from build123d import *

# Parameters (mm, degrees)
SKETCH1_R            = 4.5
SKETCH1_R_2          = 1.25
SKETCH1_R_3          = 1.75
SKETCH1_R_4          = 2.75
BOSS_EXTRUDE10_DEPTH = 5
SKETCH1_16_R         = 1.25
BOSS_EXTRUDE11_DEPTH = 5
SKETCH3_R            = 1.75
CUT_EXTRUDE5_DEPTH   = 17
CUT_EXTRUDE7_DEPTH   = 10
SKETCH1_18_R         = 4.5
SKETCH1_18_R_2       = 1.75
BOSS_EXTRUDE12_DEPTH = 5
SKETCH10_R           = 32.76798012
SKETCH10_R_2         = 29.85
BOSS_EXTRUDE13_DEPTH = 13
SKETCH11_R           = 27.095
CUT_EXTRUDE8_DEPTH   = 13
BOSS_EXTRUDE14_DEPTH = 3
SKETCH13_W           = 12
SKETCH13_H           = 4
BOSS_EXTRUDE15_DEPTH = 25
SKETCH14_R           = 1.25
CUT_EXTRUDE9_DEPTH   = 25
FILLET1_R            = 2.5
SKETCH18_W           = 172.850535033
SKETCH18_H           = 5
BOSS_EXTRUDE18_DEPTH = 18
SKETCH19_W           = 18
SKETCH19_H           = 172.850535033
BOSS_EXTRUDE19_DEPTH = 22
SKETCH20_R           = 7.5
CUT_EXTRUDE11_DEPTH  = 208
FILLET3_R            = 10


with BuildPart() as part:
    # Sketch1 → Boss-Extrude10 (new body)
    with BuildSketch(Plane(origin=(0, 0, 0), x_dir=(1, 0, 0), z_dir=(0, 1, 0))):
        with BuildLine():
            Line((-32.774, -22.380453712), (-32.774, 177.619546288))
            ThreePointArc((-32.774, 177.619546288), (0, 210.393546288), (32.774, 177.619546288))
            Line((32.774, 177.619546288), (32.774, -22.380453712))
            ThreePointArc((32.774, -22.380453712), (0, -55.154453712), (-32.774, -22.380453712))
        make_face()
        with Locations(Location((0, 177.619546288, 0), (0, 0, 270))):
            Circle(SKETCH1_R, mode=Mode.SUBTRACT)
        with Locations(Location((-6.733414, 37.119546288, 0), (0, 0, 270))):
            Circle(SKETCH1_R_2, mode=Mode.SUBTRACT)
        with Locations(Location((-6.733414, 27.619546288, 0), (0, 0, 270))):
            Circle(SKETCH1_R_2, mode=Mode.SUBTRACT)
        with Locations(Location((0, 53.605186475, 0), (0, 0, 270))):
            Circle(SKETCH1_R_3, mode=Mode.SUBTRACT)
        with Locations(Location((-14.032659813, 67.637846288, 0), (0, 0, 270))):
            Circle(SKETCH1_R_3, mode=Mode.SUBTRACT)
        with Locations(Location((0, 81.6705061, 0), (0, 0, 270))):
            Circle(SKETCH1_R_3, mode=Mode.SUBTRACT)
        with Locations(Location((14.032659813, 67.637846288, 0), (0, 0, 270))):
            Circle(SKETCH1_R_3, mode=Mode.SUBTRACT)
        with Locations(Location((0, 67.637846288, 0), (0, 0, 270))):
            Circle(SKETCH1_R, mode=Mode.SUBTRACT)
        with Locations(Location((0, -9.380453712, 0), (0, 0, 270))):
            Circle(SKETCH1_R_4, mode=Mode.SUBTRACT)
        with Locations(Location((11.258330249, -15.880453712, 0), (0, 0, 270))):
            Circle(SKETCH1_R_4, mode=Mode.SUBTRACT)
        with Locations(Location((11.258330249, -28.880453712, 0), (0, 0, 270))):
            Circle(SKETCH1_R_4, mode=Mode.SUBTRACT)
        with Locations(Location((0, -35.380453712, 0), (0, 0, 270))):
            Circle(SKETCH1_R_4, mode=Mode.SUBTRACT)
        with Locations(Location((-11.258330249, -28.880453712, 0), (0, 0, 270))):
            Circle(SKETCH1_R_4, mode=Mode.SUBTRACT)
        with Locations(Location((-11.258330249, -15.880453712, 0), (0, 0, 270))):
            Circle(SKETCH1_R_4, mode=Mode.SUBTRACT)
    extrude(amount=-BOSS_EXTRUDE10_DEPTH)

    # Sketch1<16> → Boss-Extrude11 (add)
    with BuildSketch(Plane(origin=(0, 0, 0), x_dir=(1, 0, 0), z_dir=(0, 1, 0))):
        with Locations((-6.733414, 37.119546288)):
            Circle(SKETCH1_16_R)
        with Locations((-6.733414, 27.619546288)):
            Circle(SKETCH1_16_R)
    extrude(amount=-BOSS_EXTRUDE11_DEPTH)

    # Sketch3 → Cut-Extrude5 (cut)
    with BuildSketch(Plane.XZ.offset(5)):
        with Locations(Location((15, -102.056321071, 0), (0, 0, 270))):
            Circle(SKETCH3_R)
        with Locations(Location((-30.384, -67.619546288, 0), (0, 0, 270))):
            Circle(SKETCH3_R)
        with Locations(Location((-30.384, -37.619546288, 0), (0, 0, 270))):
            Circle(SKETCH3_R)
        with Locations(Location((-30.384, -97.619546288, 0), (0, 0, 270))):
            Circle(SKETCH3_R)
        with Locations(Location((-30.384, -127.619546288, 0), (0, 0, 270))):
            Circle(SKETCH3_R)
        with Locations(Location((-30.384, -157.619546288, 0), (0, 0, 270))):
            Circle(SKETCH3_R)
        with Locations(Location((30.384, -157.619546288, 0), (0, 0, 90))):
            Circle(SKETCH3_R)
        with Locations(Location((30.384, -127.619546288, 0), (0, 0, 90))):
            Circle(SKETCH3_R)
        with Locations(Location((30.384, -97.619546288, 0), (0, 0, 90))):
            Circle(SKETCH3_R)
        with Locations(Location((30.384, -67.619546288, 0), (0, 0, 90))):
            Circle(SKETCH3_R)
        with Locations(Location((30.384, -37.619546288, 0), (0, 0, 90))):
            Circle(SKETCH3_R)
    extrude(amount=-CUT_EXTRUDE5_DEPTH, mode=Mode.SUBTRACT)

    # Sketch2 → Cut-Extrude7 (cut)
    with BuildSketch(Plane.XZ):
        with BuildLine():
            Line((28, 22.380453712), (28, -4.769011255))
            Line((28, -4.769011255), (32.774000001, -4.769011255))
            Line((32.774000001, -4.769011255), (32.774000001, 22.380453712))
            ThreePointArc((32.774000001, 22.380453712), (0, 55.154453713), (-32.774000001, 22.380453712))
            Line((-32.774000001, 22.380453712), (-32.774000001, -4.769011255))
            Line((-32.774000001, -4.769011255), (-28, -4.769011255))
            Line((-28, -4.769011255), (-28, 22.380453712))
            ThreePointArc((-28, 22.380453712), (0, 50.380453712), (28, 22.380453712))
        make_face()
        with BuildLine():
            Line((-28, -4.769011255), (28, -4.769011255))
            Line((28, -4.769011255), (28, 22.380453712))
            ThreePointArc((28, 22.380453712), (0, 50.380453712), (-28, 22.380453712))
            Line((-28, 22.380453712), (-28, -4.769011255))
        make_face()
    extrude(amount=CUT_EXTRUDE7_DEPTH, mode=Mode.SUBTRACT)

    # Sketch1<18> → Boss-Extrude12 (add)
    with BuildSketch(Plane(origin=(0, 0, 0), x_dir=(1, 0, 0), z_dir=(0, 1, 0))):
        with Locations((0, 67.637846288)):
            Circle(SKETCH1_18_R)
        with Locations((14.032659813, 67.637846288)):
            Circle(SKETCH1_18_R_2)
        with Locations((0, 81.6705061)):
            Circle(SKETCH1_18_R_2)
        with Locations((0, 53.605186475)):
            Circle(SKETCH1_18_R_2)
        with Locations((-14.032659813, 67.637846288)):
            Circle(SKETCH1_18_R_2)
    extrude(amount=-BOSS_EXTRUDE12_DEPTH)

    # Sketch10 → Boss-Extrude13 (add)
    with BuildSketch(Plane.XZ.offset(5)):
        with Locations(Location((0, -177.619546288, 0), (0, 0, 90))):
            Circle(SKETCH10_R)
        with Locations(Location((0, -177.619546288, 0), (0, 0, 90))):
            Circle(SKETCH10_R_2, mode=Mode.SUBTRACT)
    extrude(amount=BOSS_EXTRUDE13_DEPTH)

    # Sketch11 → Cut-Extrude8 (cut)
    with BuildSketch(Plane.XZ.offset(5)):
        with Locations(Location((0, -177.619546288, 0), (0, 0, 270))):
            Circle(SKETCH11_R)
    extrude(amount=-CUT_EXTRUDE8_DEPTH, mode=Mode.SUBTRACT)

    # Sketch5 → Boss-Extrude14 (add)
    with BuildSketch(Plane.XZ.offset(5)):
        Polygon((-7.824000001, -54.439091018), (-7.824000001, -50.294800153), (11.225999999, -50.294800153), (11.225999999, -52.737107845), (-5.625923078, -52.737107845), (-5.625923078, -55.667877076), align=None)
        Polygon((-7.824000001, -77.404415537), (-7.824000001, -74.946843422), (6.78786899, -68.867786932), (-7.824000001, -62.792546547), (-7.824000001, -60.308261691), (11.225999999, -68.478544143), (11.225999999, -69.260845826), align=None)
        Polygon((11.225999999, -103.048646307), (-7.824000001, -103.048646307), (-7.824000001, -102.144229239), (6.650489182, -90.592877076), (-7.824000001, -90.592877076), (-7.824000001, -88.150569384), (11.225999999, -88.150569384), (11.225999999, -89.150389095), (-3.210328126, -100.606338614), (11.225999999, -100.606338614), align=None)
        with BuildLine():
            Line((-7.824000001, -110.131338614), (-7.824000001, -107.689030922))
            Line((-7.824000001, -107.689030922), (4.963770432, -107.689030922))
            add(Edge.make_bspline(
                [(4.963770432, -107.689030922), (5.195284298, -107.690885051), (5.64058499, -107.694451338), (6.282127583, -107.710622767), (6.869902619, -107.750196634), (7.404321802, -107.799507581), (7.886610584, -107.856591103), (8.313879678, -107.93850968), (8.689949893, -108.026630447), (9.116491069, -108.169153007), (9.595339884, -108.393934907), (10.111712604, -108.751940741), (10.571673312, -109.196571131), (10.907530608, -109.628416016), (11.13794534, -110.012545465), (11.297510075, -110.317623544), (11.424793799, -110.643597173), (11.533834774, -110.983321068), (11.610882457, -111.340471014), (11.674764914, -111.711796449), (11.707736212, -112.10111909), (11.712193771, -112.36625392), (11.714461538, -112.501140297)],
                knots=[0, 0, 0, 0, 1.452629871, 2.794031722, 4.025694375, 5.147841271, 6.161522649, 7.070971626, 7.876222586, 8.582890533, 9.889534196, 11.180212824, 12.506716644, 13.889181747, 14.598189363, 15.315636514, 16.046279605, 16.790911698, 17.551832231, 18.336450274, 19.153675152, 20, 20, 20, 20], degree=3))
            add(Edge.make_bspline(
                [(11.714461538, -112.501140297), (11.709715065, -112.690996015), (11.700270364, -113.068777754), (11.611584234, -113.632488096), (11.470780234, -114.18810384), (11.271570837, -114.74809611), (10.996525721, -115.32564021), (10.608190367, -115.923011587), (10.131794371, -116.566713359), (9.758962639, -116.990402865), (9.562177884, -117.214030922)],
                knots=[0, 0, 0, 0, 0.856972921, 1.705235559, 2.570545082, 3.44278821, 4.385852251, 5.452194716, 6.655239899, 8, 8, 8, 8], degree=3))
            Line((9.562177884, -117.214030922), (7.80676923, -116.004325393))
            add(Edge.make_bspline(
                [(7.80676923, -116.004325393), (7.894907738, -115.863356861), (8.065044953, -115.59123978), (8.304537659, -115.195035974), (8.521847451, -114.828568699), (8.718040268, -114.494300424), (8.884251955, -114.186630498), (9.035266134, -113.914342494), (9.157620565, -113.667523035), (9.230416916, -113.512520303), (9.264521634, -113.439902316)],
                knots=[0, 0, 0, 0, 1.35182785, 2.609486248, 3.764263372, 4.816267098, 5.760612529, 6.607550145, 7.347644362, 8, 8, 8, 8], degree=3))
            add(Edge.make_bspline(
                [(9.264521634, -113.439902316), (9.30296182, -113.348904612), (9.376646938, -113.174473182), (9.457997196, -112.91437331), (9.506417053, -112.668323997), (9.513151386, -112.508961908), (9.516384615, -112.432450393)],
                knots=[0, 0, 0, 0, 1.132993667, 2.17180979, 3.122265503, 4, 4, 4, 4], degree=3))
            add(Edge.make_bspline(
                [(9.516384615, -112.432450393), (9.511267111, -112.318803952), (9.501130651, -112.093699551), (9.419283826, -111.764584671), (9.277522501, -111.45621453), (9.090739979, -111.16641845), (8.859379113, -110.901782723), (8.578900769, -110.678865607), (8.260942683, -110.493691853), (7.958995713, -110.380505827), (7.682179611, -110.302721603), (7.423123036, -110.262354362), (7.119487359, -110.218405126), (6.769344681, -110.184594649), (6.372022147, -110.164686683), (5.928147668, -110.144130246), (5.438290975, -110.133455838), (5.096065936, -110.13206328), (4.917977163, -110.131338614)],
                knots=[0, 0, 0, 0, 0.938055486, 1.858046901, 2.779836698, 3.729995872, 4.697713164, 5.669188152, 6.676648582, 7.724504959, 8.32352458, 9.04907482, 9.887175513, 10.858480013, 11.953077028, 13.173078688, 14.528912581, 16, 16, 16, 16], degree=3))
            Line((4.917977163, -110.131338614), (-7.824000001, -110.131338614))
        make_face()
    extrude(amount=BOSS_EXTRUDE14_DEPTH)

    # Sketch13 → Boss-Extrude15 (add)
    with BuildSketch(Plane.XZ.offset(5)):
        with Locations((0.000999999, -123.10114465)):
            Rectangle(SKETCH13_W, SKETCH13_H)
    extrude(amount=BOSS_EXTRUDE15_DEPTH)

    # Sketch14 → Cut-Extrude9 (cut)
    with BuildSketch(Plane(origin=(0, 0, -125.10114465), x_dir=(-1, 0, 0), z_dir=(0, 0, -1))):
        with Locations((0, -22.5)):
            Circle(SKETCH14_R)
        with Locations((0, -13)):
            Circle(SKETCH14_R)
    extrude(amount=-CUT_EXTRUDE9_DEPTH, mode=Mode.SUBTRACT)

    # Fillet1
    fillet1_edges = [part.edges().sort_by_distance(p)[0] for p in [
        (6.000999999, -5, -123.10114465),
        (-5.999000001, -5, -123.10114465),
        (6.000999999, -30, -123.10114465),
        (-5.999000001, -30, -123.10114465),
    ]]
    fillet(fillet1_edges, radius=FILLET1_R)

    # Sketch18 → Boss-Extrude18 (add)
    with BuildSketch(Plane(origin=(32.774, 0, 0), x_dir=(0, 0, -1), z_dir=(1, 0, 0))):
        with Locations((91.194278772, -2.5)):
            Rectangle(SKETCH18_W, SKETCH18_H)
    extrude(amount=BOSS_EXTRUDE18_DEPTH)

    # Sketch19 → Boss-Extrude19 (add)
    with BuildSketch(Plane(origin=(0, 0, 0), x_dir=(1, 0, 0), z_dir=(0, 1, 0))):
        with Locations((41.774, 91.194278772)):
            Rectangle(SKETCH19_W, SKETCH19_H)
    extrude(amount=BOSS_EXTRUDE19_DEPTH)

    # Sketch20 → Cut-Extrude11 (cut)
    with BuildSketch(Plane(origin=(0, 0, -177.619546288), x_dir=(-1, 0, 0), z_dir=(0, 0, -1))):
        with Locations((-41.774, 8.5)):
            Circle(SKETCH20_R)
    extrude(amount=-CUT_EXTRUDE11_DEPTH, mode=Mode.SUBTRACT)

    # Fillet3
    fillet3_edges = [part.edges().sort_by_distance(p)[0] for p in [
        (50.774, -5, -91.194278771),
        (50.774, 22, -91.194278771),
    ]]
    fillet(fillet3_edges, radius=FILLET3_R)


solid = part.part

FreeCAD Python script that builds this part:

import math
import FreeCAD as App
import Part
import Sketcher

V = App.Vector


def edges_at(feature, points):
    """Names of the edges that pass closest to the given points."""
    edges = feature.Shape.Edges
    near = lambda p: min(range(len(edges)), key=lambda i: edges[i].distToShape(Part.Vertex(*p))[0])
    return sorted({f"Edge{near(p) + 1}" for p in points})


def add_polygon(sketch, points):
    """Adds a closed chain of lines whose ends are joined by coincident constraints."""
    first, n = sketch.GeometryCount, len(points)
    for a, b in zip(points, points[1:] + points[:1]):
        sketch.addGeometry(Part.LineSegment(App.Vector(*a, 0), App.Vector(*b, 0)), False)
    for i in range(n):
        sketch.addConstraint(Sketcher.Constraint("Coincident", first + i, 2, first + (i + 1) % n, 1))

doc = App.newDocument("Part")
body = doc.addObject("PartDesign::Body", "Body")

# Sketch on XZ plane
sketch1 = body.newObject("Sketcher::SketchObject", "Sketch")
sketch1.AttachmentSupport = (doc.getObject("XZ_Plane"), [""])
sketch1.MapMode = "FlatFace"
sketch1.addGeometry(Part.LineSegment(V(-32.774, -177.619546, 0), V(-32.774, 22.380454, 0)), False)
sketch1.addGeometry(Part.ArcOfCircle(Part.Circle(V(0, 22.380454, 0), V(0, 0, 1), 32.774), math.radians(0), math.radians(180)), False)
sketch1.addGeometry(Part.LineSegment(V(32.774, 22.380454, 0), V(32.774, -177.619546, 0)), False)
sketch1.addGeometry(Part.ArcOfCircle(Part.Circle(V(0, -177.619546, 0), V(0, 0, 1), 32.774), math.radians(180), math.radians(360)), False)
sketch1.addGeometry(Part.Circle(V(11.25833, 28.880454, 0), V(0, 0, 1), 2.75), False)
sketch1.addGeometry(Part.Circle(V(11.25833, 15.880454, 0), V(0, 0, 1), 2.75), False)
sketch1.addGeometry(Part.Circle(V(14.03266, -67.637846, 0), V(0, 0, 1), 1.75), False)
sketch1.addGeometry(Part.Circle(V(0, 35.380454, 0), V(0, 0, 1), 2.75), False)
sketch1.addGeometry(Part.Circle(V(0, 9.380454, 0), V(0, 0, 1), 2.75), False)
sketch1.addGeometry(Part.Circle(V(-11.25833, 28.880454, 0), V(0, 0, 1), 2.75), False)
sketch1.addGeometry(Part.Circle(V(-11.25833, 15.880454, 0), V(0, 0, 1), 2.75), False)
sketch1.addGeometry(Part.Circle(V(-6.733414, -27.619546, 0), V(0, 0, 1), 1.25), False)
sketch1.addGeometry(Part.Circle(V(-6.733414, -37.119546, 0), V(0, 0, 1), 1.25), False)
sketch1.addGeometry(Part.Circle(V(0, -53.605186, 0), V(0, 0, 1), 1.75), False)
sketch1.addGeometry(Part.Circle(V(0, -67.637846, 0), V(0, 0, 1), 4.5), False)
sketch1.addGeometry(Part.Circle(V(-14.03266, -67.637846, 0), V(0, 0, 1), 1.75), False)
sketch1.addGeometry(Part.Circle(V(0, -81.670506, 0), V(0, 0, 1), 1.75), False)
sketch1.addGeometry(Part.Circle(V(0, -177.619546, 0), V(0, 0, 1), 4.5), False)
sketch1.addConstraint(Sketcher.Constraint("Tangent", 0, 2, 1, 2))
sketch1.addConstraint(Sketcher.Constraint("Tangent", 1, 1, 2, 1))
sketch1.addConstraint(Sketcher.Constraint("Tangent", 2, 2, 3, 2))
sketch1.addConstraint(Sketcher.Constraint("Tangent", 3, 1, 0, 1))
sketch1.addConstraint(Sketcher.Constraint("Vertical", 0))
sketch1.addConstraint(Sketcher.Constraint("Vertical", 2))
sketch1.addConstraint(Sketcher.Constraint("Coincident", 17, 3, 3, 3))
sketch1.addConstraint(Sketcher.Constraint("Equal", 4, 5))
sketch1.addConstraint(Sketcher.Constraint("Equal", 5, 7))
sketch1.addConstraint(Sketcher.Constraint("Equal", 7, 8))
sketch1.addConstraint(Sketcher.Constraint("Equal", 8, 9))
sketch1.addConstraint(Sketcher.Constraint("Equal", 9, 10))
sketch1.addConstraint(Sketcher.Constraint("Equal", 11, 12))
sketch1.addConstraint(Sketcher.Constraint("Equal", 6, 13))
sketch1.addConstraint(Sketcher.Constraint("Equal", 13, 15))
sketch1.addConstraint(Sketcher.Constraint("Equal", 15, 16))
sketch1.addConstraint(Sketcher.Constraint("Equal", 14, 17))
sketch1.addConstraint(Sketcher.Constraint("Symmetric", 4, 3, 9, 3, -2))
sketch1.addConstraint(Sketcher.Constraint("Symmetric", 5, 3, 10, 3, -2))
sketch1.addConstraint(Sketcher.Constraint("Symmetric", 6, 3, 15, 3, -2))
sketch1.addConstraint(Sketcher.Constraint("PointOnObject", 1, 3, -2))
sketch1.addConstraint(Sketcher.Constraint("PointOnObject", 7, 3, -2))
sketch1.addConstraint(Sketcher.Constraint("PointOnObject", 8, 3, -2))
sketch1.addConstraint(Sketcher.Constraint("PointOnObject", 13, 3, -2))
sketch1.addConstraint(Sketcher.Constraint("PointOnObject", 14, 3, -2))
sketch1.addConstraint(Sketcher.Constraint("PointOnObject", 16, 3, -2))
sketch1.addConstraint(Sketcher.Constraint("Horizontal", 6, 3, 14, 3))
sketch1.addConstraint(Sketcher.Constraint("Vertical", 4, 3, 5, 3))
sketch1.addConstraint(Sketcher.Constraint("Vertical", 11, 3, 12, 3))
sketch1.addConstraint(Sketcher.Constraint("Diameter", 14, 9.0))
sketch1.addConstraint(Sketcher.Constraint("Diameter", 4, 5.5))
sketch1.addConstraint(Sketcher.Constraint("Diameter", 6, 3.5))
sketch1.addConstraint(Sketcher.Constraint("Diameter", 11, 2.5))
sketch1.addConstraint(Sketcher.Constraint("DistanceY", 0, 1, 0, 2, 200.0))
sketch1.addConstraint(Sketcher.Constraint("Radius", 1, 32.774))
sketch1.addConstraint(Sketcher.Constraint("DistanceY", 5, 3, 4, 3, 13.0))
sketch1.addConstraint(Sketcher.Constraint("DistanceY", 1, 3, 7, 3, 13.0))
sketch1.addConstraint(Sketcher.Constraint("DistanceY", 8, 3, 1, 3, 13.0))
sketch1.addConstraint(Sketcher.Constraint("DistanceY", 11, 3, 8, 3, 37.0))
sketch1.addConstraint(Sketcher.Constraint("DistanceY", 12, 3, 10, 3, 53.0))
sketch1.addConstraint(Sketcher.Constraint("DistanceY", 1, 3, 4, 3, 6.5))
sketch1.addConstraint(Sketcher.Constraint("DistanceY", 6, 3, 5, 3, 83.5183))
sketch1.addConstraint(Sketcher.Constraint("DistanceX", -1, 1, 4, 3, 11.25833))
sketch1.addConstraint(Sketcher.Constraint("DistanceX", -1, 1, 6, 3, 14.03266))
sketch1.addConstraint(Sketcher.Constraint("DistanceY", 13, 3, 12, 3, 16.48564))
sketch1.addConstraint(Sketcher.Constraint("DistanceY", 16, 3, 14, 3, 14.03266))
sketch1.addConstraint(Sketcher.Constraint("DistanceY", -1, 1, 1, 3, 22.380454))
sketch1.addConstraint(Sketcher.Constraint("DistanceX", 11, 3, -1, 1, 6.733414))
pad1 = body.newObject("PartDesign::Pad", "Pad")
pad1.Profile = sketch1
pad1.Length = 5

# Sketch on XZ plane
sketch2 = body.newObject("Sketcher::SketchObject", "Sketch001")
sketch2.AttachmentSupport = (doc.getObject("XZ_Plane"), [""])
sketch2.MapMode = "FlatFace"
sketch2.addGeometry(Part.Circle(V(-6.733414, -37.119546, 0), V(0, 0, 1), 1.25), False)
sketch2.addGeometry(Part.Circle(V(-6.733414, -27.619546, 0), V(0, 0, 1), 1.25), False)
sketch2.addConstraint(Sketcher.Constraint("Equal", 0, 1))
sketch2.addConstraint(Sketcher.Constraint("Vertical", 0, 3, 1, 3))
sketch2.addConstraint(Sketcher.Constraint("Diameter", 0, 2.5))
sketch2.addConstraint(Sketcher.Constraint("DistanceY", 0, 3, 1, 3, 9.5))
sketch2.addConstraint(Sketcher.Constraint("DistanceX", 0, 3, -1, 1, 6.733414))
sketch2.addConstraint(Sketcher.Constraint("DistanceY", 0, 3, -1, 1, 37.119546))
pad2 = body.newObject("PartDesign::Pad", "Pad001")
pad2.Profile = sketch2
pad2.Length = 5

# Sketch on XZ plane
sketch3 = body.newObject("Sketcher::SketchObject", "Sketch002")
sketch3.AttachmentSupport = (doc.getObject("XZ_Plane"), [""])
sketch3.MapMode = "FlatFace"
sketch3.AttachmentOffset = App.Placement(V(0, 0, 5), App.Rotation())
sketch3.addGeometry(Part.Circle(V(15, -102.056321, 0), V(0, 0, 1), 1.75), False)
sketch3.addGeometry(Part.Circle(V(-30.384, -67.619546, 0), V(0, 0, 1), 1.75), False)
sketch3.addGeometry(Part.Circle(V(-30.384, -37.619546, 0), V(0, 0, 1), 1.75), False)
sketch3.addGeometry(Part.Circle(V(-30.384, -97.619546, 0), V(0, 0, 1), 1.75), False)
sketch3.addGeometry(Part.Circle(V(-30.384, -127.619546, 0), V(0, 0, 1), 1.75), False)
sketch3.addGeometry(Part.Circle(V(-30.384, -157.619546, 0), V(0, 0, 1), 1.75), False)
sketch3.addGeometry(Part.Circle(V(30.384, -157.619546, 0), V(0, 0, 1), 1.75), False)
sketch3.addGeometry(Part.Circle(V(30.384, -127.619546, 0), V(0, 0, 1), 1.75), False)
sketch3.addGeometry(Part.Circle(V(30.384, -97.619546, 0), V(0, 0, 1), 1.75), False)
sketch3.addGeometry(Part.Circle(V(30.384, -67.619546, 0), V(0, 0, 1), 1.75), False)
sketch3.addGeometry(Part.Circle(V(30.384, -37.619546, 0), V(0, 0, 1), 1.75), False)
sketch3.addConstraint(Sketcher.Constraint("Equal", 0, 1))
sketch3.addConstraint(Sketcher.Constraint("Equal", 1, 2))
sketch3.addConstraint(Sketcher.Constraint("Equal", 2, 3))
sketch3.addConstraint(Sketcher.Constraint("Equal", 3, 4))
sketch3.addConstraint(Sketcher.Constraint("Equal", 4, 5))
sketch3.addConstraint(Sketcher.Constraint("Equal", 5, 6))
sketch3.addConstraint(Sketcher.Constraint("Equal", 6, 7))
sketch3.addConstraint(Sketcher.Constraint("Equal", 7, 8))
sketch3.addConstraint(Sketcher.Constraint("Equal", 8, 9))
sketch3.addConstraint(Sketcher.Constraint("Equal", 9, 10))
sketch3.addConstraint(Sketcher.Constraint("Symmetric", 5, 3, 6, 3, -2))
sketch3.addConstraint(Sketcher.Constraint("Symmetric", 4, 3, 7, 3, -2))
sketch3.addConstraint(Sketcher.Constraint("Symmetric", 3, 3, 8, 3, -2))
sketch3.addConstraint(Sketcher.Constraint("Symmetric", 1, 3, 9, 3, -2))
sketch3.addConstraint(Sketcher.Constraint("Symmetric", 2, 3, 10, 3, -2))
sketch3.addConstraint(Sketcher.Constraint("Vertical", 1, 3, 2, 3))
sketch3.addConstraint(Sketcher.Constraint("Vertical", 2, 3, 3, 3))
sketch3.addConstraint(Sketcher.Constraint("Vertical", 3, 3, 4, 3))
sketch3.addConstraint(Sketcher.Constraint("Vertical", 4, 3, 5, 3))
sketch3.addConstraint(Sketcher.Constraint("Diameter", 0, 3.5))
sketch3.addConstraint(Sketcher.Constraint("DistanceX", -1, 1, 0, 3, 15.0))
sketch3.addConstraint(Sketcher.Constraint("DistanceY", 1, 3, 2, 3, 30.0))
sketch3.addConstraint(Sketcher.Constraint("DistanceY", 3, 3, 1, 3, 30.0))
sketch3.addConstraint(Sketcher.Constraint("DistanceY", 4, 3, 3, 3, 30.0))
sketch3.addConstraint(Sketcher.Constraint("DistanceY", 5, 3, 4, 3, 30.0))
sketch3.addConstraint(Sketcher.Constraint("DistanceX", 1, 3, -1, 1, 30.384))
sketch3.addConstraint(Sketcher.Constraint("DistanceY", 0, 3, -1, 1, 102.056321))
sketch3.addConstraint(Sketcher.Constraint("DistanceY", 1, 3, -1, 1, 67.619546))
pocket1 = body.newObject("PartDesign::Pocket", "Pocket")
pocket1.Profile = sketch3
pocket1.Length = 17

# Sketch on XZ plane
sketch4 = body.newObject("Sketcher::SketchObject", "Sketch003")
sketch4.AttachmentSupport = (doc.getObject("XZ_Plane"), [""])
sketch4.MapMode = "FlatFace"
sketch4.addGeometry(Part.LineSegment(V(32.774, -4.769011, 0), V(32.774, 22.380454, 0)), False)
sketch4.addGeometry(Part.ArcOfCircle(Part.Circle(V(0, 22.380454, 0), V(0, 0, 1), 32.774), math.radians(0), math.radians(180)), False)
sketch4.addGeometry(Part.LineSegment(V(-32.774, 22.380454, 0), V(-32.774, -4.769011, 0)), False)
sketch4.addGeometry(Part.LineSegment(V(-32.774, -4.769011, 0), V(32.774, -4.769011, 0)), False)
sketch4.addConstraint(Sketcher.Constraint("Tangent", 0, 2, 1, 1))
sketch4.addConstraint(Sketcher.Constraint("Tangent", 1, 2, 2, 1))
sketch4.addConstraint(Sketcher.Constraint("Coincident", 2, 2, 3, 1))
sketch4.addConstraint(Sketcher.Constraint("Coincident", 3, 2, 0, 1))
sketch4.addConstraint(Sketcher.Constraint("Vertical", 0))
sketch4.addConstraint(Sketcher.Constraint("Vertical", 2))
sketch4.addConstraint(Sketcher.Constraint("Horizontal", 3))
sketch4.addConstraint(Sketcher.Constraint("PointOnObject", 1, 3, -2))
sketch4.addConstraint(Sketcher.Constraint("Radius", 1, 32.774))
sketch4.addConstraint(Sketcher.Constraint("DistanceY", 0, 1, 0, 2, 27.149465))
sketch4.addConstraint(Sketcher.Constraint("DistanceY", 2, 2, -1, 1, 4.769011))
pocket2 = body.newObject("PartDesign::Pocket", "Pocket001")
pocket2.Profile = sketch4
pocket2.Length = 10
pocket2.Reversed = True

# Sketch on XZ plane
sketch5 = body.newObject("Sketcher::SketchObject", "Sketch004")
sketch5.AttachmentSupport = (doc.getObject("XZ_Plane"), [""])
sketch5.MapMode = "FlatFace"
sketch5.addGeometry(Part.Circle(V(0, -67.637846, 0), V(0, 0, 1), 4.5), False)
sketch5.addGeometry(Part.Circle(V(14.03266, -67.637846, 0), V(0, 0, 1), 1.75), False)
sketch5.addGeometry(Part.Circle(V(0, -81.670506, 0), V(0, 0, 1), 1.75), False)
sketch5.addGeometry(Part.Circle(V(0, -53.605186, 0), V(0, 0, 1), 1.75), False)
sketch5.addGeometry(Part.Circle(V(-14.03266, -67.637846, 0), V(0, 0, 1), 1.75), False)
sketch5.addConstraint(Sketcher.Constraint("Equal", 1, 2))
sketch5.addConstraint(Sketcher.Constraint("Equal", 2, 3))
sketch5.addConstraint(Sketcher.Constraint("Equal", 3, 4))
sketch5.addConstraint(Sketcher.Constraint("Symmetric", 1, 3, 4, 3, -2))
sketch5.addConstraint(Sketcher.Constraint("PointOnObject", 0, 3, -2))
sketch5.addConstraint(Sketcher.Constraint("PointOnObject", 2, 3, -2))
sketch5.addConstraint(Sketcher.Constraint("PointOnObject", 3, 3, -2))
sketch5.addConstraint(Sketcher.Constraint("Horizontal", 0, 3, 1, 3))
sketch5.addConstraint(Sketcher.Constraint("Diameter", 0, 9.0))
sketch5.addConstraint(Sketcher.Constraint("Diameter", 1, 3.5))
sketch5.addConstraint(Sketcher.Constraint("DistanceX", -1, 1, 1, 3, 14.03266))
sketch5.addConstraint(Sketcher.Constraint("DistanceY", 2, 3, 0, 3, 14.03266))
sketch5.addConstraint(Sketcher.Constraint("DistanceY", 0, 3, 3, 3, 14.03266))
sketch5.addConstraint(Sketcher.Constraint("DistanceY", 0, 3, -1, 1, 67.637846))
pad3 = body.newObject("PartDesign::Pad", "Pad002")
pad3.Profile = sketch5
pad3.Length = 5

# Sketch on XZ plane
sketch6 = body.newObject("Sketcher::SketchObject", "Sketch005")
sketch6.AttachmentSupport = (doc.getObject("XZ_Plane"), [""])
sketch6.MapMode = "FlatFace"
sketch6.AttachmentOffset = App.Placement(V(0, 0, 5), App.Rotation())
sketch6.addGeometry(Part.Circle(V(0, -177.619546, 0), V(0, 0, 1), 32.76798), False)
sketch6.addGeometry(Part.Circle(V(0, -177.619546, 0), V(0, 0, 1), 29.85), False)
sketch6.addConstraint(Sketcher.Constraint("Coincident", 1, 3, 0, 3))
sketch6.addConstraint(Sketcher.Constraint("PointOnObject", 0, 3, -2))
sketch6.addConstraint(Sketcher.Constraint("Diameter", 1, 59.7))
sketch6.addConstraint(Sketcher.Constraint("Diameter", 0, 65.53596))
sketch6.addConstraint(Sketcher.Constraint("DistanceY", 0, 3, -1, 1, 177.619546))
pad4 = body.newObject("PartDesign::Pad", "Pad003")
pad4.Profile = sketch6
pad4.Length = 13

# Sketch on XZ plane
sketch7 = body.newObject("Sketcher::SketchObject", "Sketch006")
sketch7.AttachmentSupport = (doc.getObject("XZ_Plane"), [""])
sketch7.MapMode = "FlatFace"
sketch7.AttachmentOffset = App.Placement(V(0, 0, 5), App.Rotation())
sketch7.addGeometry(Part.Circle(V(0, -177.619546, 0), V(0, 0, 1), 27.095), False)
sketch7.addConstraint(Sketcher.Constraint("PointOnObject", 0, 3, -2))
sketch7.addConstraint(Sketcher.Constraint("Diameter", 0, 54.19))
sketch7.addConstraint(Sketcher.Constraint("DistanceY", 0, 3, -1, 1, 177.619546))
pocket3 = body.newObject("PartDesign::Pocket", "Pocket002")
pocket3.Profile = sketch7
pocket3.Length = 13

# Sketch on XZ plane
sketch8 = body.newObject("Sketcher::SketchObject", "Sketch007")
sketch8.AttachmentSupport = (doc.getObject("XZ_Plane"), [""])
sketch8.MapMode = "FlatFace"
sketch8.AttachmentOffset = App.Placement(V(0, 0, 5), App.Rotation())
add_polygon(sketch8, [(-7.824, -50.2948), (-7.824, -54.439091), (-5.625923, -55.667877), (-5.625923, -52.737108), (11.226, -52.737108), (11.226, -50.2948)])  # lines 0-5
add_polygon(sketch8, [(-7.824, -74.946843), (-7.824, -77.404416), (11.226, -69.260846), (11.226, -68.478544), (-7.824, -60.308262), (-7.824, -62.792547), (6.787869, -68.867787)])  # lines 6-12
add_polygon(sketch8, [(-7.824, -103.048646), (11.226, -103.048646), (11.226, -100.606339), (-3.210328, -100.606339), (11.226, -89.150389), (11.226, -88.150569), (-7.824, -88.150569), (-7.824, -90.592877), (6.650489, -90.592877), (-7.824, -102.144229)])  # lines 13-22
sketch8.addGeometry(Part.LineSegment(V(-7.824, -107.689031, 0), V(-7.824, -110.131339, 0)), False)  # 23
sketch8.addGeometry(Part.LineSegment(V(-7.824, -110.131339, 0), V(4.917977, -110.131339, 0)), False)  # 24
sketch8.addGeometry(Part.BSplineCurve([V(9.516385, -112.43245, 0), V(9.511267, -112.318804, 0), V(9.501131, -112.0937, 0), V(9.419284, -111.764585, 0), V(9.277523, -111.456215, 0), V(9.09074, -111.166418, 0), V(8.859379, -110.901783, 0), V(8.578901, -110.678866, 0), V(8.260943, -110.493692, 0), V(7.958996, -110.380506, 0), V(7.68218, -110.302722, 0), V(7.423123, -110.262354, 0), V(7.119487, -110.218405, 0), V(6.769345, -110.184595, 0), V(6.372022, -110.164687, 0), V(5.928148, -110.14413, 0), V(5.438291, -110.133456, 0), V(5.096066, -110.132063, 0), V(4.917977, -110.131339, 0)], [4, 1, 1, 1, 1, 1, 1, 1, 1, 1, 1, 1, 1, 1, 1, 1, 4], [0, 0.938055486, 1.858046901, 2.779836698, 3.729995872, 4.697713164, 5.669188152, 6.676648582, 7.724504959, 8.32352458, 9.04907482, 9.887175513, 10.858480013, 11.953077028, 13.173078688, 14.528912581, 16], False, 3, [1, 1, 1, 1, 1, 1, 1, 1, 1, 1, 1, 1, 1, 1, 1, 1, 1, 1, 1], False), False)  # 25
sketch8.addGeometry(Part.BSplineCurve([V(9.264522, -113.439902, 0), V(9.302962, -113.348905, 0), V(9.376647, -113.174473, 0), V(9.457997, -112.914373, 0), V(9.506417, -112.668324, 0), V(9.513151, -112.508962, 0), V(9.516385, -112.43245, 0)], [4, 1, 1, 1, 4], [0, 1.132993667, 2.17180979, 3.122265503, 4], False, 3, [1, 1, 1, 1, 1, 1, 1], False), False)  # 26
sketch8.addGeometry(Part.BSplineCurve([V(7.806769, -116.004325, 0), V(7.894908, -115.863357, 0), V(8.065045, -115.59124, 0), V(8.304538, -115.195036, 0), V(8.521847, -114.828569, 0), V(8.71804, -114.4943, 0), V(8.884252, -114.18663, 0), V(9.035266, -113.914342, 0), V(9.157621, -113.667523, 0), V(9.230417, -113.51252, 0), V(9.264522, -113.439902, 0)], [4, 1, 1, 1, 1, 1, 1, 1, 4], [0, 1.35182785, 2.609486248, 3.764263372, 4.816267098, 5.760612529, 6.607550145, 7.347644362, 8], False, 3, [1, 1, 1, 1, 1, 1, 1, 1, 1, 1, 1], False), False)  # 27
sketch8.addGeometry(Part.LineSegment(V(7.806769, -116.004325, 0), V(9.562178, -117.214031, 0)), False)  # 28
sketch8.addGeometry(Part.BSplineCurve([V(11.714462, -112.50114, 0), V(11.709715, -112.690996, 0), V(11.70027, -113.068778, 0), V(11.611584, -113.632488, 0), V(11.47078, -114.188104, 0), V(11.271571, -114.748096, 0), V(10.996526, -115.32564, 0), V(10.60819, -115.923012, 0), V(10.131794, -116.566713, 0), V(9.758963, -116.990403, 0), V(9.562178, -117.214031, 0)], [4, 1, 1, 1, 1, 1, 1, 1, 4], [0, 0.856972921, 1.705235559, 2.570545082, 3.44278821, 4.385852251, 5.452194716, 6.655239899, 8], False, 3, [1, 1, 1, 1, 1, 1, 1, 1, 1, 1, 1], False), False)  # 29
sketch8.addGeometry(Part.BSplineCurve([V(4.96377, -107.689031, 0), V(5.195284, -107.690885, 0), V(5.640585, -107.694451, 0), V(6.282128, -107.710623, 0), V(6.869903, -107.750197, 0), V(7.404322, -107.799508, 0), V(7.886611, -107.856591, 0), V(8.31388, -107.93851, 0), V(8.68995, -108.02663, 0), V(9.116491, -108.169153, 0), V(9.59534, -108.393935, 0), V(10.111713, -108.751941, 0), V(10.571673, -109.196571, 0), V(10.907531, -109.628416, 0), V(11.137945, -110.012545, 0), V(11.29751, -110.317624, 0), V(11.424794, -110.643597, 0), V(11.533835, -110.983321, 0), V(11.610882, -111.340471, 0), V(11.674765, -111.711796, 0), V(11.707736, -112.101119, 0), V(11.712194, -112.366254, 0), V(11.714462, -112.50114, 0)], [4, 1, 1, 1, 1, 1, 1, 1, 1, 1, 1, 1, 1, 1, 1, 1, 1, 1, 1, 1, 4], [0, 1.452629871, 2.794031722, 4.025694375, 5.147841271, 6.161522649, 7.070971626, 7.876222586, 8.582890533, 9.889534196, 11.180212824, 12.506716644, 13.889181747, 14.598189363, 15.315636514, 16.046279605, 16.790911698, 17.551832231, 18.336450274, 19.153675152, 20], False, 3, [1, 1, 1, 1, 1, 1, 1, 1, 1, 1, 1, 1, 1, 1, 1, 1, 1, 1, 1, 1, 1, 1, 1], False), False)  # 30
sketch8.addGeometry(Part.LineSegment(V(4.96377, -107.689031, 0), V(-7.824, -107.689031, 0)), False)  # 31
sketch8.addConstraint(Sketcher.Constraint("Block", 25))
sketch8.addConstraint(Sketcher.Constraint("Block", 26))
sketch8.addConstraint(Sketcher.Constraint("Block", 27))
sketch8.addConstraint(Sketcher.Constraint("Block", 29))
sketch8.addConstraint(Sketcher.Constraint("Block", 30))
sketch8.addConstraint(Sketcher.Constraint("Coincident", 23, 2, 24, 1))
sketch8.addConstraint(Sketcher.Constraint("Coincident", 24, 2, 25, 2))
sketch8.addConstraint(Sketcher.Constraint("Coincident", 27, 1, 28, 1))
sketch8.addConstraint(Sketcher.Constraint("Coincident", 28, 2, 29, 2))
sketch8.addConstraint(Sketcher.Constraint("Coincident", 30, 1, 31, 1))
sketch8.addConstraint(Sketcher.Constraint("Coincident", 31, 2, 23, 1))
sketch8.addConstraint(Sketcher.Constraint("Vertical", 0))
sketch8.addConstraint(Sketcher.Constraint("Vertical", 2))
sketch8.addConstraint(Sketcher.Constraint("Horizontal", 3))
sketch8.addConstraint(Sketcher.Constraint("Vertical", 4))
sketch8.addConstraint(Sketcher.Constraint("Horizontal", 5))
sketch8.addConstraint(Sketcher.Constraint("Vertical", 6))
sketch8.addConstraint(Sketcher.Constraint("Vertical", 8))
sketch8.addConstraint(Sketcher.Constraint("Vertical", 10))
sketch8.addConstraint(Sketcher.Constraint("Horizontal", 13))
sketch8.addConstraint(Sketcher.Constraint("Vertical", 14))
sketch8.addConstraint(Sketcher.Constraint("Horizontal", 15))
sketch8.addConstraint(Sketcher.Constraint("Vertical", 17))
sketch8.addConstraint(Sketcher.Constraint("Horizontal", 18))
sketch8.addConstraint(Sketcher.Constraint("Vertical", 19))
sketch8.addConstraint(Sketcher.Constraint("Horizontal", 20))
sketch8.addConstraint(Sketcher.Constraint("Vertical", 22))
sketch8.addConstraint(Sketcher.Constraint("Vertical", 23))
sketch8.addConstraint(Sketcher.Constraint("Horizontal", 24))
sketch8.addConstraint(Sketcher.Constraint("Horizontal", 31))
sketch8.addConstraint(Sketcher.Constraint("DistanceX", 5, 2, 5, 1, 19.05))
sketch8.addConstraint(Sketcher.Constraint("DistanceX", 13, 1, 13, 2, 19.05))
sketch8.addConstraint(Sketcher.Constraint("DistanceX", 18, 2, 18, 1, 19.05))
sketch8.addConstraint(Sketcher.Constraint("DistanceX", 6, 2, 3, 2, 19.05))
sketch8.addConstraint(Sketcher.Constraint("DistanceX", 6, 2, 7, 2, 19.05))
sketch8.addConstraint(Sketcher.Constraint("DistanceX", 6, 2, 13, 2, 19.05))
sketch8.addConstraint(Sketcher.Constraint("DistanceX", 23, 2, 13, 2, 19.05))
sketch8.addConstraint(Sketcher.Constraint("DistanceY", 8, 1, 8, 2, 0.782302))
sketch8.addConstraint(Sketcher.Constraint("DistanceX", 0, 2, -1, 1, 7.824))
sketch8.addConstraint(Sketcher.Constraint("DistanceX", 9, 2, -1, 1, 7.824))
sketch8.addConstraint(Sketcher.Constraint("DistanceX", -1, 1, 16, 2, 11.226))
sketch8.addConstraint(Sketcher.Constraint("DistanceY", 23, 2, 15, 2, 9.525))
sketch8.addConstraint(Sketcher.Constraint("DistanceX", 15, 2, 15, 1, 14.436328))
sketch8.addConstraint(Sketcher.Constraint("DistanceX", 20, 1, 20, 2, 14.474489))
sketch8.addConstraint(Sketcher.Constraint("DistanceY", 0, 2, 0, 1, 4.144291))
sketch8.addConstraint(Sketcher.Constraint("DistanceY", 2, 1, 2, 2, 2.930769))
sketch8.addConstraint(Sketcher.Constraint("DistanceY", 17, 1, 17, 2, 0.99982))
sketch8.addConstraint(Sketcher.Constraint("DistanceY", 4, 2, -1, 1, 50.2948))
sketch8.addConstraint(Sketcher.Constraint("DistanceY", 13, 2, 7, 2, 33.7878))
sketch8.addConstraint(Sketcher.Constraint("DistanceY", 31, 2, 21, 2, 5.544802))
sketch8.addConstraint(Sketcher.Constraint("Distance", 7, 20.717631))
sketch8.addConstraint(Sketcher.Constraint("Distance", 12, 15.82598))
sketch8.addConstraint(Sketcher.Constraint("DistanceX", 3, 1, 3, 2, 16.851923))
sketch8.addConstraint(Sketcher.Constraint("DistanceY", 4, 1, 4, 2, 2.442308))
sketch8.addConstraint(Sketcher.Constraint("DistanceY", 6, 2, 6, 1, 2.457572))
sketch8.addConstraint(Sketcher.Constraint("DistanceY", 10, 2, 10, 1, 2.484285))
sketch8.addConstraint(Sketcher.Constraint("DistanceY", 14, 1, 14, 2, 2.442308))
sketch8.addConstraint(Sketcher.Constraint("DistanceY", 19, 2, 19, 1, 2.442308))
sketch8.addConstraint(Sketcher.Constraint("DistanceY", 9, 2, -1, 1, 60.308262))
sketch8.addConstraint(Sketcher.Constraint("DistanceX", -1, 1, 11, 2, 6.787869))
sketch8.addConstraint(Sketcher.Constraint("DistanceY", 16, 2, -1, 1, 89.150389))
pad5 = body.newObject("PartDesign::Pad", "Pad004")
pad5.Profile = sketch8
pad5.Length = 3

# Sketch on XZ plane
sketch9 = body.newObject("Sketcher::SketchObject", "Sketch008")
sketch9.AttachmentSupport = (doc.getObject("XZ_Plane"), [""])
sketch9.MapMode = "FlatFace"
sketch9.AttachmentOffset = App.Placement(V(0, 0, 5), App.Rotation())
add_polygon(sketch9, [(-5.999, -121.101145), (-5.999, -125.101145), (6.001, -125.101145), (6.001, -121.101145)])  # lines 0-3
sketch9.addConstraint(Sketcher.Constraint("Vertical", 0))
sketch9.addConstraint(Sketcher.Constraint("Horizontal", 1))
sketch9.addConstraint(Sketcher.Constraint("Vertical", 2))
sketch9.addConstraint(Sketcher.Constraint("Horizontal", 3))
sketch9.addConstraint(Sketcher.Constraint("DistanceX", 1, 1, 1, 2, 12.0))
sketch9.addConstraint(Sketcher.Constraint("DistanceY", 0, 2, 0, 1, 4.0))
sketch9.addConstraint(Sketcher.Constraint("DistanceX", 0, 2, -1, 1, 5.999))
sketch9.addConstraint(Sketcher.Constraint("DistanceY", 0, 2, -1, 1, 125.101145))
pad6 = body.newObject("PartDesign::Pad", "Pad005")
pad6.Profile = sketch9
pad6.Length = 25

# Sketch on XY plane
sketch10 = body.newObject("Sketcher::SketchObject", "Sketch009")
sketch10.AttachmentSupport = (doc.getObject("XY_Plane"), [""])
sketch10.MapMode = "FlatFace"
sketch10.AttachmentOffset = App.Placement(V(0, 0, -125.101145), App.Rotation())
sketch10.addGeometry(Part.Circle(V(0, -22.5, 0), V(0, 0, 1), 1.25), False)
sketch10.addGeometry(Part.Circle(V(0, -13, 0), V(0, 0, 1), 1.25), False)
sketch10.addConstraint(Sketcher.Constraint("Equal", 0, 1))
sketch10.addConstraint(Sketcher.Constraint("PointOnObject", 0, 3, -2))
sketch10.addConstraint(Sketcher.Constraint("PointOnObject", 1, 3, -2))
sketch10.addConstraint(Sketcher.Constraint("Diameter", 0, 2.5))
sketch10.addConstraint(Sketcher.Constraint("DistanceY", 1, 3, -1, 1, 13.0))
sketch10.addConstraint(Sketcher.Constraint("DistanceY", 0, 3, -1, 1, 22.5))
pocket4 = body.newObject("PartDesign::Pocket", "Pocket003")
pocket4.Profile = sketch10
pocket4.Length = 25
pocket4.Reversed = True
doc.recompute()

fillet = body.newObject("PartDesign::Fillet", "Fillet")
fillet.Base = (pocket4, edges_at(pocket4, [
    (6.001, -5, -123.101),
    (-5.999, -5, -123.101),
    (6.001, -30, -123.101),
    (-5.999, -30, -123.101),
]))
fillet.Radius = 2.5

# Sketch on YZ plane
sketch11 = body.newObject("Sketcher::SketchObject", "Sketch010")
sketch11.AttachmentSupport = (doc.getObject("YZ_Plane"), [""])
sketch11.MapMode = "FlatFace"
sketch11.AttachmentOffset = App.Placement(V(0, 0, 32.774), App.Rotation())
add_polygon(sketch11, [(0, -4.769011), (-5, -4.769011), (-5, -177.619546), (0, -177.619546)])  # lines 0-3
sketch11.addConstraint(Sketcher.Constraint("Horizontal", 0))
sketch11.addConstraint(Sketcher.Constraint("Vertical", 1))
sketch11.addConstraint(Sketcher.Constraint("Horizontal", 2))
sketch11.addConstraint(Sketcher.Constraint("Vertical", 3))
sketch11.addConstraint(Sketcher.Constraint("PointOnObject", 2, 2, -2))
sketch11.addConstraint(Sketcher.Constraint("DistanceX", 0, 2, 0, 1, 5.0))
sketch11.addConstraint(Sketcher.Constraint("DistanceY", 1, 2, 1, 1, 172.850535))
sketch11.addConstraint(Sketcher.Constraint("DistanceY", 0, 2, -1, 1, 4.769011))
pad7 = body.newObject("PartDesign::Pad", "Pad006")
pad7.Profile = sketch11
pad7.Length = 18

# Sketch on XZ plane
sketch12 = body.newObject("Sketcher::SketchObject", "Sketch011")
sketch12.AttachmentSupport = (doc.getObject("XZ_Plane"), [""])
sketch12.MapMode = "FlatFace"
add_polygon(sketch12, [(32.774, -177.619546), (32.774, -4.769011), (50.774, -4.769011), (50.774, -177.619546)])  # lines 0-3
sketch12.addConstraint(Sketcher.Constraint("Vertical", 0))
sketch12.addConstraint(Sketcher.Constraint("Horizontal", 1))
sketch12.addConstraint(Sketcher.Constraint("Vertical", 2))
sketch12.addConstraint(Sketcher.Constraint("Horizontal", 3))
sketch12.addConstraint(Sketcher.Constraint("DistanceX", 1, 1, 1, 2, 18.0))
sketch12.addConstraint(Sketcher.Constraint("DistanceX", -1, 1, 0, 2, 32.774))
sketch12.addConstraint(Sketcher.Constraint("DistanceY", 0, 1, 0, 2, 172.850535))
sketch12.addConstraint(Sketcher.Constraint("DistanceY", 0, 2, -1, 1, 4.769011))
pad8 = body.newObject("PartDesign::Pad", "Pad007")
pad8.Profile = sketch12
pad8.Length = 22
pad8.Reversed = True

# Sketch on XY plane
sketch13 = body.newObject("Sketcher::SketchObject", "Sketch012")
sketch13.AttachmentSupport = (doc.getObject("XY_Plane"), [""])
sketch13.MapMode = "FlatFace"
sketch13.AttachmentOffset = App.Placement(V(0, 0, -177.619546), App.Rotation())
sketch13.addGeometry(Part.Circle(V(41.774, 8.5, 0), V(0, 0, 1), 7.5), False)
sketch13.addConstraint(Sketcher.Constraint("Diameter", 0, 15.0))
sketch13.addConstraint(Sketcher.Constraint("DistanceY", -1, 1, 0, 3, 8.5))
sketch13.addConstraint(Sketcher.Constraint("DistanceX", -1, 1, 0, 3, 41.774))
pocket5 = body.newObject("PartDesign::Pocket", "Pocket004")
pocket5.Profile = sketch13
pocket5.Length = 208
pocket5.Reversed = True
doc.recompute()

fillet2 = body.newObject("PartDesign::Fillet", "Fillet001")
fillet2.Base = (pocket5, edges_at(pocket5, [(50.774, -5, -91.194), (50.774, 22, -91.194)]))
fillet2.Radius = 10

doc.recompute()
